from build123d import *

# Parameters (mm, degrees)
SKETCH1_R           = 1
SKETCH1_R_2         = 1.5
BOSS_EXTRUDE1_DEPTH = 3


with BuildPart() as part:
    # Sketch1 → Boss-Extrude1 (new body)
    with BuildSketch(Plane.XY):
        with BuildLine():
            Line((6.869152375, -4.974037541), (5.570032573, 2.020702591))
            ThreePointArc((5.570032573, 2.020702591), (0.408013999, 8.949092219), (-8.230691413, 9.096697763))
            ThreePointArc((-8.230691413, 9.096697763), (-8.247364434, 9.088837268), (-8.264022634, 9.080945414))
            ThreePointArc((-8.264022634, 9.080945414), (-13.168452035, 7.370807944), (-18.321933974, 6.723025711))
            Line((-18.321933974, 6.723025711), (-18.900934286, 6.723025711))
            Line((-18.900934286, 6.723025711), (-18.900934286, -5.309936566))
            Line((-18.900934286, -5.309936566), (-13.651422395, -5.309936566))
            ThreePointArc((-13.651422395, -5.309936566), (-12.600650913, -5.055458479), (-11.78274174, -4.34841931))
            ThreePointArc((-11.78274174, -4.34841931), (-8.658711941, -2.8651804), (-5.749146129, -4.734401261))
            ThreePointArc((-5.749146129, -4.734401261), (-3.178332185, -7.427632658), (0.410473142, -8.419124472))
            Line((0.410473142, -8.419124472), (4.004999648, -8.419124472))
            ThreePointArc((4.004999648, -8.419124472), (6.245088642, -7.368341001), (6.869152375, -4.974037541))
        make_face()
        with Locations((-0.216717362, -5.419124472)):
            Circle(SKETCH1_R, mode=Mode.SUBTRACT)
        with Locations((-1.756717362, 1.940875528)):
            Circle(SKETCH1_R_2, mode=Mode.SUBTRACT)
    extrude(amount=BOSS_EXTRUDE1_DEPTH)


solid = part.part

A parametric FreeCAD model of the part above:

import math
import FreeCAD as App
import Part
import Sketcher

doc = App.newDocument("Part")
params = doc.addObject("Spreadsheet::Sheet", "Params")
for row, (alias, value) in enumerate([
    ("sketch1_diameter", "2 mm"),
    ("sketch1_diameter2", "3 mm"),
    ("pad1_length", "3 mm"),
], start=1):
    params.set(f"A{row}", alias)
    params.set(f"B{row}", "=" + value)
    params.setAlias(f"B{row}", alias)

body = doc.addObject("PartDesign::Body", "Body")

# Sketch on XY plane
sketch1 = doc.addObject("Sketcher::SketchObject", "Sketch")
body.addObject(sketch1)
sketch1.AttachmentSupport = (doc.XY_Plane, [""])
sketch1.MapMode = "FlatFace"
sketch1.addGeometry([
    Part.LineSegment(App.Vector(6.869, -4.974, 0), App.Vector(5.57, 2.021, 0)),  # 0
    Part.ArcOfCircle(Part.Circle(App.Vector(-4.062, 0.232, 0), App.Vector(0, 0, 1), 9.796), math.radians(11), math.radians(115)),  # 1
    Part.ArcOfCircle(Part.Circle(App.Vector(-4.062, 0.232, 0), App.Vector(0, 0, 1), 9.796), math.radians(115.19), math.radians(115.4)),  # 2
    Part.ArcOfCircle(Part.Circle(App.Vector(-18.812, 31.442, 0), App.Vector(0, 0, 1), 24.724), math.radians(-89), math.radians(-65)),  # 3
    Part.LineSegment(App.Vector(-18.322, 6.723, 0), App.Vector(-18.901, 6.723, 0)),  # 4
    Part.LineSegment(App.Vector(-18.901, 6.723, 0), App.Vector(-18.901, -5.31, 0)),  # 5
    Part.LineSegment(App.Vector(-18.901, -5.31, 0), App.Vector(-13.651, -5.31, 0)),  # 6
    Part.ArcOfCircle(Part.Circle(App.Vector(-13.651, -3.013, 0), App.Vector(0, 0, 1), 2.297), math.radians(-90), math.radians(-36)),  # 7
    Part.ArcOfCircle(Part.Circle(App.Vector(-8.886, -6.418, 0), App.Vector(0, 0, 1), 3.56), math.radians(28), math.radians(144)),  # 8
    Part.ArcOfCircle(Part.Circle(App.Vector(0.41, -1.428, 0), App.Vector(0, 0, 1), 6.991), math.radians(-152), math.radians(-90)),  # 9
    Part.LineSegment(App.Vector(0.41, -8.419, 0), App.Vector(4.005, -8.419, 0)),  # 10
    Part.ArcOfCircle(Part.Circle(App.Vector(4.005, -5.506, 0), App.Vector(0, 0, 1), 2.913), math.radians(-90), math.radians(11)),  # 11
    Part.Circle(App.Vector(-0.217, -5.419, 0), App.Vector(0, 0, 1), 1),  # 12
    Part.Circle(App.Vector(-1.757, 1.941, 0), App.Vector(0, 0, 1), 1.5),  # 13
], False)
sketch1.addConstraint([
    Sketcher.Constraint("Tangent", 0, 2, 1, 1),
    Sketcher.Constraint("Tangent", 1, 2, 2, 1),
    Sketcher.Constraint("Coincident", 2, 2, 3, 2),
    Sketcher.Constraint("Coincident", 3, 1, 4, 1),
    Sketcher.Constraint("Coincident", 4, 2, 5, 1),
    Sketcher.Constraint("Coincident", 5, 2, 6, 1),
    Sketcher.Constraint("Tangent", 6, 2, 7, 1),
    Sketcher.Constraint("Tangent", 7, 2, 8, 2),
    Sketcher.Constraint("Tangent", 8, 1, 9, 1),
    Sketcher.Constraint("Tangent", 9, 2, 10, 1),
    Sketcher.Constraint("Tangent", 10, 2, 11, 1),
    Sketcher.Constraint("Tangent", 11, 2, 0, 1),
    Sketcher.Constraint("Horizontal", 4),
    Sketcher.Constraint("Vertical", 5),
    Sketcher.Constraint("Horizontal", 6),
    Sketcher.Constraint("Horizontal", 10),
    Sketcher.Constraint("Diameter", 12, 2.0),
    Sketcher.Constraint("Diameter", 13, 3.0),
    Sketcher.Constraint("DistanceY", 9, 2, 12, 3, 3.0),
    Sketcher.Constraint("DistanceX", 4, 2, 4, 1, 0.579),
    Sketcher.Constraint("Radius", 1, 9.796292),
    Sketcher.Constraint("Radius", 2, 9.79608),
    Sketcher.Constraint("Radius", 3, 24.72419),
    Sketcher.Constraint("Radius", 7, 2.296622),
    Sketcher.Constraint("Radius", 8, 3.560121),
    Sketcher.Constraint("Radius", 9, 6.990769),
    Sketcher.Constraint("DistanceX", 13, 3, 12, 3, 1.54),
    Sketcher.Constraint("DistanceY", 12, 3, 13, 3, 7.36),
    Sketcher.Constraint("DistanceX", -1, 1, 11, 3, 4.005),
    Sketcher.Constraint("Radius", 11, 2.913133),
    Sketcher.Constraint("DistanceX", 6, 1, 6, 2, 5.249512),
    Sketcher.Constraint("DistanceY", 8, 1, -1, 1, 4.734401),
    Sketcher.Constraint("DistanceX", 7, 3, 2, 2, 5.3874),
    Sketcher.Constraint("DistanceX", 8, 1, 1, 3, 1.687599),
    Sketcher.Constraint("Distance", 0, 7.114359),
    Sketcher.Constraint("DistanceX", 10, 1, 10, 2, 3.594527),
    Sketcher.Constraint("DistanceY", 5, 2, 5, 1, 12.032962),
    Sketcher.Constraint("DistanceY", -1, 1, 2, 3, 0.232039),
    Sketcher.Constraint("DistanceX", 3, 3, -1, 1, 18.811651),
    Sketcher.Constraint("DistanceX", 1, 2, -1, 1, 8.230691),
    Sketcher.Constraint("DistanceX", 12, 3, 9, 3, 0.627191),
])
sketch1.setExpression("Constraints[16]", "Params.sketch1_diameter")
sketch1.setExpression("Constraints[17]", "Params.sketch1_diameter2")
pad1 = doc.addObject("PartDesign::Pad", "Pad")
body.addObject(pad1)
pad1.Profile = sketch1
pad1.setExpression("Length", "Params.pad1_length")

doc.recompute()
